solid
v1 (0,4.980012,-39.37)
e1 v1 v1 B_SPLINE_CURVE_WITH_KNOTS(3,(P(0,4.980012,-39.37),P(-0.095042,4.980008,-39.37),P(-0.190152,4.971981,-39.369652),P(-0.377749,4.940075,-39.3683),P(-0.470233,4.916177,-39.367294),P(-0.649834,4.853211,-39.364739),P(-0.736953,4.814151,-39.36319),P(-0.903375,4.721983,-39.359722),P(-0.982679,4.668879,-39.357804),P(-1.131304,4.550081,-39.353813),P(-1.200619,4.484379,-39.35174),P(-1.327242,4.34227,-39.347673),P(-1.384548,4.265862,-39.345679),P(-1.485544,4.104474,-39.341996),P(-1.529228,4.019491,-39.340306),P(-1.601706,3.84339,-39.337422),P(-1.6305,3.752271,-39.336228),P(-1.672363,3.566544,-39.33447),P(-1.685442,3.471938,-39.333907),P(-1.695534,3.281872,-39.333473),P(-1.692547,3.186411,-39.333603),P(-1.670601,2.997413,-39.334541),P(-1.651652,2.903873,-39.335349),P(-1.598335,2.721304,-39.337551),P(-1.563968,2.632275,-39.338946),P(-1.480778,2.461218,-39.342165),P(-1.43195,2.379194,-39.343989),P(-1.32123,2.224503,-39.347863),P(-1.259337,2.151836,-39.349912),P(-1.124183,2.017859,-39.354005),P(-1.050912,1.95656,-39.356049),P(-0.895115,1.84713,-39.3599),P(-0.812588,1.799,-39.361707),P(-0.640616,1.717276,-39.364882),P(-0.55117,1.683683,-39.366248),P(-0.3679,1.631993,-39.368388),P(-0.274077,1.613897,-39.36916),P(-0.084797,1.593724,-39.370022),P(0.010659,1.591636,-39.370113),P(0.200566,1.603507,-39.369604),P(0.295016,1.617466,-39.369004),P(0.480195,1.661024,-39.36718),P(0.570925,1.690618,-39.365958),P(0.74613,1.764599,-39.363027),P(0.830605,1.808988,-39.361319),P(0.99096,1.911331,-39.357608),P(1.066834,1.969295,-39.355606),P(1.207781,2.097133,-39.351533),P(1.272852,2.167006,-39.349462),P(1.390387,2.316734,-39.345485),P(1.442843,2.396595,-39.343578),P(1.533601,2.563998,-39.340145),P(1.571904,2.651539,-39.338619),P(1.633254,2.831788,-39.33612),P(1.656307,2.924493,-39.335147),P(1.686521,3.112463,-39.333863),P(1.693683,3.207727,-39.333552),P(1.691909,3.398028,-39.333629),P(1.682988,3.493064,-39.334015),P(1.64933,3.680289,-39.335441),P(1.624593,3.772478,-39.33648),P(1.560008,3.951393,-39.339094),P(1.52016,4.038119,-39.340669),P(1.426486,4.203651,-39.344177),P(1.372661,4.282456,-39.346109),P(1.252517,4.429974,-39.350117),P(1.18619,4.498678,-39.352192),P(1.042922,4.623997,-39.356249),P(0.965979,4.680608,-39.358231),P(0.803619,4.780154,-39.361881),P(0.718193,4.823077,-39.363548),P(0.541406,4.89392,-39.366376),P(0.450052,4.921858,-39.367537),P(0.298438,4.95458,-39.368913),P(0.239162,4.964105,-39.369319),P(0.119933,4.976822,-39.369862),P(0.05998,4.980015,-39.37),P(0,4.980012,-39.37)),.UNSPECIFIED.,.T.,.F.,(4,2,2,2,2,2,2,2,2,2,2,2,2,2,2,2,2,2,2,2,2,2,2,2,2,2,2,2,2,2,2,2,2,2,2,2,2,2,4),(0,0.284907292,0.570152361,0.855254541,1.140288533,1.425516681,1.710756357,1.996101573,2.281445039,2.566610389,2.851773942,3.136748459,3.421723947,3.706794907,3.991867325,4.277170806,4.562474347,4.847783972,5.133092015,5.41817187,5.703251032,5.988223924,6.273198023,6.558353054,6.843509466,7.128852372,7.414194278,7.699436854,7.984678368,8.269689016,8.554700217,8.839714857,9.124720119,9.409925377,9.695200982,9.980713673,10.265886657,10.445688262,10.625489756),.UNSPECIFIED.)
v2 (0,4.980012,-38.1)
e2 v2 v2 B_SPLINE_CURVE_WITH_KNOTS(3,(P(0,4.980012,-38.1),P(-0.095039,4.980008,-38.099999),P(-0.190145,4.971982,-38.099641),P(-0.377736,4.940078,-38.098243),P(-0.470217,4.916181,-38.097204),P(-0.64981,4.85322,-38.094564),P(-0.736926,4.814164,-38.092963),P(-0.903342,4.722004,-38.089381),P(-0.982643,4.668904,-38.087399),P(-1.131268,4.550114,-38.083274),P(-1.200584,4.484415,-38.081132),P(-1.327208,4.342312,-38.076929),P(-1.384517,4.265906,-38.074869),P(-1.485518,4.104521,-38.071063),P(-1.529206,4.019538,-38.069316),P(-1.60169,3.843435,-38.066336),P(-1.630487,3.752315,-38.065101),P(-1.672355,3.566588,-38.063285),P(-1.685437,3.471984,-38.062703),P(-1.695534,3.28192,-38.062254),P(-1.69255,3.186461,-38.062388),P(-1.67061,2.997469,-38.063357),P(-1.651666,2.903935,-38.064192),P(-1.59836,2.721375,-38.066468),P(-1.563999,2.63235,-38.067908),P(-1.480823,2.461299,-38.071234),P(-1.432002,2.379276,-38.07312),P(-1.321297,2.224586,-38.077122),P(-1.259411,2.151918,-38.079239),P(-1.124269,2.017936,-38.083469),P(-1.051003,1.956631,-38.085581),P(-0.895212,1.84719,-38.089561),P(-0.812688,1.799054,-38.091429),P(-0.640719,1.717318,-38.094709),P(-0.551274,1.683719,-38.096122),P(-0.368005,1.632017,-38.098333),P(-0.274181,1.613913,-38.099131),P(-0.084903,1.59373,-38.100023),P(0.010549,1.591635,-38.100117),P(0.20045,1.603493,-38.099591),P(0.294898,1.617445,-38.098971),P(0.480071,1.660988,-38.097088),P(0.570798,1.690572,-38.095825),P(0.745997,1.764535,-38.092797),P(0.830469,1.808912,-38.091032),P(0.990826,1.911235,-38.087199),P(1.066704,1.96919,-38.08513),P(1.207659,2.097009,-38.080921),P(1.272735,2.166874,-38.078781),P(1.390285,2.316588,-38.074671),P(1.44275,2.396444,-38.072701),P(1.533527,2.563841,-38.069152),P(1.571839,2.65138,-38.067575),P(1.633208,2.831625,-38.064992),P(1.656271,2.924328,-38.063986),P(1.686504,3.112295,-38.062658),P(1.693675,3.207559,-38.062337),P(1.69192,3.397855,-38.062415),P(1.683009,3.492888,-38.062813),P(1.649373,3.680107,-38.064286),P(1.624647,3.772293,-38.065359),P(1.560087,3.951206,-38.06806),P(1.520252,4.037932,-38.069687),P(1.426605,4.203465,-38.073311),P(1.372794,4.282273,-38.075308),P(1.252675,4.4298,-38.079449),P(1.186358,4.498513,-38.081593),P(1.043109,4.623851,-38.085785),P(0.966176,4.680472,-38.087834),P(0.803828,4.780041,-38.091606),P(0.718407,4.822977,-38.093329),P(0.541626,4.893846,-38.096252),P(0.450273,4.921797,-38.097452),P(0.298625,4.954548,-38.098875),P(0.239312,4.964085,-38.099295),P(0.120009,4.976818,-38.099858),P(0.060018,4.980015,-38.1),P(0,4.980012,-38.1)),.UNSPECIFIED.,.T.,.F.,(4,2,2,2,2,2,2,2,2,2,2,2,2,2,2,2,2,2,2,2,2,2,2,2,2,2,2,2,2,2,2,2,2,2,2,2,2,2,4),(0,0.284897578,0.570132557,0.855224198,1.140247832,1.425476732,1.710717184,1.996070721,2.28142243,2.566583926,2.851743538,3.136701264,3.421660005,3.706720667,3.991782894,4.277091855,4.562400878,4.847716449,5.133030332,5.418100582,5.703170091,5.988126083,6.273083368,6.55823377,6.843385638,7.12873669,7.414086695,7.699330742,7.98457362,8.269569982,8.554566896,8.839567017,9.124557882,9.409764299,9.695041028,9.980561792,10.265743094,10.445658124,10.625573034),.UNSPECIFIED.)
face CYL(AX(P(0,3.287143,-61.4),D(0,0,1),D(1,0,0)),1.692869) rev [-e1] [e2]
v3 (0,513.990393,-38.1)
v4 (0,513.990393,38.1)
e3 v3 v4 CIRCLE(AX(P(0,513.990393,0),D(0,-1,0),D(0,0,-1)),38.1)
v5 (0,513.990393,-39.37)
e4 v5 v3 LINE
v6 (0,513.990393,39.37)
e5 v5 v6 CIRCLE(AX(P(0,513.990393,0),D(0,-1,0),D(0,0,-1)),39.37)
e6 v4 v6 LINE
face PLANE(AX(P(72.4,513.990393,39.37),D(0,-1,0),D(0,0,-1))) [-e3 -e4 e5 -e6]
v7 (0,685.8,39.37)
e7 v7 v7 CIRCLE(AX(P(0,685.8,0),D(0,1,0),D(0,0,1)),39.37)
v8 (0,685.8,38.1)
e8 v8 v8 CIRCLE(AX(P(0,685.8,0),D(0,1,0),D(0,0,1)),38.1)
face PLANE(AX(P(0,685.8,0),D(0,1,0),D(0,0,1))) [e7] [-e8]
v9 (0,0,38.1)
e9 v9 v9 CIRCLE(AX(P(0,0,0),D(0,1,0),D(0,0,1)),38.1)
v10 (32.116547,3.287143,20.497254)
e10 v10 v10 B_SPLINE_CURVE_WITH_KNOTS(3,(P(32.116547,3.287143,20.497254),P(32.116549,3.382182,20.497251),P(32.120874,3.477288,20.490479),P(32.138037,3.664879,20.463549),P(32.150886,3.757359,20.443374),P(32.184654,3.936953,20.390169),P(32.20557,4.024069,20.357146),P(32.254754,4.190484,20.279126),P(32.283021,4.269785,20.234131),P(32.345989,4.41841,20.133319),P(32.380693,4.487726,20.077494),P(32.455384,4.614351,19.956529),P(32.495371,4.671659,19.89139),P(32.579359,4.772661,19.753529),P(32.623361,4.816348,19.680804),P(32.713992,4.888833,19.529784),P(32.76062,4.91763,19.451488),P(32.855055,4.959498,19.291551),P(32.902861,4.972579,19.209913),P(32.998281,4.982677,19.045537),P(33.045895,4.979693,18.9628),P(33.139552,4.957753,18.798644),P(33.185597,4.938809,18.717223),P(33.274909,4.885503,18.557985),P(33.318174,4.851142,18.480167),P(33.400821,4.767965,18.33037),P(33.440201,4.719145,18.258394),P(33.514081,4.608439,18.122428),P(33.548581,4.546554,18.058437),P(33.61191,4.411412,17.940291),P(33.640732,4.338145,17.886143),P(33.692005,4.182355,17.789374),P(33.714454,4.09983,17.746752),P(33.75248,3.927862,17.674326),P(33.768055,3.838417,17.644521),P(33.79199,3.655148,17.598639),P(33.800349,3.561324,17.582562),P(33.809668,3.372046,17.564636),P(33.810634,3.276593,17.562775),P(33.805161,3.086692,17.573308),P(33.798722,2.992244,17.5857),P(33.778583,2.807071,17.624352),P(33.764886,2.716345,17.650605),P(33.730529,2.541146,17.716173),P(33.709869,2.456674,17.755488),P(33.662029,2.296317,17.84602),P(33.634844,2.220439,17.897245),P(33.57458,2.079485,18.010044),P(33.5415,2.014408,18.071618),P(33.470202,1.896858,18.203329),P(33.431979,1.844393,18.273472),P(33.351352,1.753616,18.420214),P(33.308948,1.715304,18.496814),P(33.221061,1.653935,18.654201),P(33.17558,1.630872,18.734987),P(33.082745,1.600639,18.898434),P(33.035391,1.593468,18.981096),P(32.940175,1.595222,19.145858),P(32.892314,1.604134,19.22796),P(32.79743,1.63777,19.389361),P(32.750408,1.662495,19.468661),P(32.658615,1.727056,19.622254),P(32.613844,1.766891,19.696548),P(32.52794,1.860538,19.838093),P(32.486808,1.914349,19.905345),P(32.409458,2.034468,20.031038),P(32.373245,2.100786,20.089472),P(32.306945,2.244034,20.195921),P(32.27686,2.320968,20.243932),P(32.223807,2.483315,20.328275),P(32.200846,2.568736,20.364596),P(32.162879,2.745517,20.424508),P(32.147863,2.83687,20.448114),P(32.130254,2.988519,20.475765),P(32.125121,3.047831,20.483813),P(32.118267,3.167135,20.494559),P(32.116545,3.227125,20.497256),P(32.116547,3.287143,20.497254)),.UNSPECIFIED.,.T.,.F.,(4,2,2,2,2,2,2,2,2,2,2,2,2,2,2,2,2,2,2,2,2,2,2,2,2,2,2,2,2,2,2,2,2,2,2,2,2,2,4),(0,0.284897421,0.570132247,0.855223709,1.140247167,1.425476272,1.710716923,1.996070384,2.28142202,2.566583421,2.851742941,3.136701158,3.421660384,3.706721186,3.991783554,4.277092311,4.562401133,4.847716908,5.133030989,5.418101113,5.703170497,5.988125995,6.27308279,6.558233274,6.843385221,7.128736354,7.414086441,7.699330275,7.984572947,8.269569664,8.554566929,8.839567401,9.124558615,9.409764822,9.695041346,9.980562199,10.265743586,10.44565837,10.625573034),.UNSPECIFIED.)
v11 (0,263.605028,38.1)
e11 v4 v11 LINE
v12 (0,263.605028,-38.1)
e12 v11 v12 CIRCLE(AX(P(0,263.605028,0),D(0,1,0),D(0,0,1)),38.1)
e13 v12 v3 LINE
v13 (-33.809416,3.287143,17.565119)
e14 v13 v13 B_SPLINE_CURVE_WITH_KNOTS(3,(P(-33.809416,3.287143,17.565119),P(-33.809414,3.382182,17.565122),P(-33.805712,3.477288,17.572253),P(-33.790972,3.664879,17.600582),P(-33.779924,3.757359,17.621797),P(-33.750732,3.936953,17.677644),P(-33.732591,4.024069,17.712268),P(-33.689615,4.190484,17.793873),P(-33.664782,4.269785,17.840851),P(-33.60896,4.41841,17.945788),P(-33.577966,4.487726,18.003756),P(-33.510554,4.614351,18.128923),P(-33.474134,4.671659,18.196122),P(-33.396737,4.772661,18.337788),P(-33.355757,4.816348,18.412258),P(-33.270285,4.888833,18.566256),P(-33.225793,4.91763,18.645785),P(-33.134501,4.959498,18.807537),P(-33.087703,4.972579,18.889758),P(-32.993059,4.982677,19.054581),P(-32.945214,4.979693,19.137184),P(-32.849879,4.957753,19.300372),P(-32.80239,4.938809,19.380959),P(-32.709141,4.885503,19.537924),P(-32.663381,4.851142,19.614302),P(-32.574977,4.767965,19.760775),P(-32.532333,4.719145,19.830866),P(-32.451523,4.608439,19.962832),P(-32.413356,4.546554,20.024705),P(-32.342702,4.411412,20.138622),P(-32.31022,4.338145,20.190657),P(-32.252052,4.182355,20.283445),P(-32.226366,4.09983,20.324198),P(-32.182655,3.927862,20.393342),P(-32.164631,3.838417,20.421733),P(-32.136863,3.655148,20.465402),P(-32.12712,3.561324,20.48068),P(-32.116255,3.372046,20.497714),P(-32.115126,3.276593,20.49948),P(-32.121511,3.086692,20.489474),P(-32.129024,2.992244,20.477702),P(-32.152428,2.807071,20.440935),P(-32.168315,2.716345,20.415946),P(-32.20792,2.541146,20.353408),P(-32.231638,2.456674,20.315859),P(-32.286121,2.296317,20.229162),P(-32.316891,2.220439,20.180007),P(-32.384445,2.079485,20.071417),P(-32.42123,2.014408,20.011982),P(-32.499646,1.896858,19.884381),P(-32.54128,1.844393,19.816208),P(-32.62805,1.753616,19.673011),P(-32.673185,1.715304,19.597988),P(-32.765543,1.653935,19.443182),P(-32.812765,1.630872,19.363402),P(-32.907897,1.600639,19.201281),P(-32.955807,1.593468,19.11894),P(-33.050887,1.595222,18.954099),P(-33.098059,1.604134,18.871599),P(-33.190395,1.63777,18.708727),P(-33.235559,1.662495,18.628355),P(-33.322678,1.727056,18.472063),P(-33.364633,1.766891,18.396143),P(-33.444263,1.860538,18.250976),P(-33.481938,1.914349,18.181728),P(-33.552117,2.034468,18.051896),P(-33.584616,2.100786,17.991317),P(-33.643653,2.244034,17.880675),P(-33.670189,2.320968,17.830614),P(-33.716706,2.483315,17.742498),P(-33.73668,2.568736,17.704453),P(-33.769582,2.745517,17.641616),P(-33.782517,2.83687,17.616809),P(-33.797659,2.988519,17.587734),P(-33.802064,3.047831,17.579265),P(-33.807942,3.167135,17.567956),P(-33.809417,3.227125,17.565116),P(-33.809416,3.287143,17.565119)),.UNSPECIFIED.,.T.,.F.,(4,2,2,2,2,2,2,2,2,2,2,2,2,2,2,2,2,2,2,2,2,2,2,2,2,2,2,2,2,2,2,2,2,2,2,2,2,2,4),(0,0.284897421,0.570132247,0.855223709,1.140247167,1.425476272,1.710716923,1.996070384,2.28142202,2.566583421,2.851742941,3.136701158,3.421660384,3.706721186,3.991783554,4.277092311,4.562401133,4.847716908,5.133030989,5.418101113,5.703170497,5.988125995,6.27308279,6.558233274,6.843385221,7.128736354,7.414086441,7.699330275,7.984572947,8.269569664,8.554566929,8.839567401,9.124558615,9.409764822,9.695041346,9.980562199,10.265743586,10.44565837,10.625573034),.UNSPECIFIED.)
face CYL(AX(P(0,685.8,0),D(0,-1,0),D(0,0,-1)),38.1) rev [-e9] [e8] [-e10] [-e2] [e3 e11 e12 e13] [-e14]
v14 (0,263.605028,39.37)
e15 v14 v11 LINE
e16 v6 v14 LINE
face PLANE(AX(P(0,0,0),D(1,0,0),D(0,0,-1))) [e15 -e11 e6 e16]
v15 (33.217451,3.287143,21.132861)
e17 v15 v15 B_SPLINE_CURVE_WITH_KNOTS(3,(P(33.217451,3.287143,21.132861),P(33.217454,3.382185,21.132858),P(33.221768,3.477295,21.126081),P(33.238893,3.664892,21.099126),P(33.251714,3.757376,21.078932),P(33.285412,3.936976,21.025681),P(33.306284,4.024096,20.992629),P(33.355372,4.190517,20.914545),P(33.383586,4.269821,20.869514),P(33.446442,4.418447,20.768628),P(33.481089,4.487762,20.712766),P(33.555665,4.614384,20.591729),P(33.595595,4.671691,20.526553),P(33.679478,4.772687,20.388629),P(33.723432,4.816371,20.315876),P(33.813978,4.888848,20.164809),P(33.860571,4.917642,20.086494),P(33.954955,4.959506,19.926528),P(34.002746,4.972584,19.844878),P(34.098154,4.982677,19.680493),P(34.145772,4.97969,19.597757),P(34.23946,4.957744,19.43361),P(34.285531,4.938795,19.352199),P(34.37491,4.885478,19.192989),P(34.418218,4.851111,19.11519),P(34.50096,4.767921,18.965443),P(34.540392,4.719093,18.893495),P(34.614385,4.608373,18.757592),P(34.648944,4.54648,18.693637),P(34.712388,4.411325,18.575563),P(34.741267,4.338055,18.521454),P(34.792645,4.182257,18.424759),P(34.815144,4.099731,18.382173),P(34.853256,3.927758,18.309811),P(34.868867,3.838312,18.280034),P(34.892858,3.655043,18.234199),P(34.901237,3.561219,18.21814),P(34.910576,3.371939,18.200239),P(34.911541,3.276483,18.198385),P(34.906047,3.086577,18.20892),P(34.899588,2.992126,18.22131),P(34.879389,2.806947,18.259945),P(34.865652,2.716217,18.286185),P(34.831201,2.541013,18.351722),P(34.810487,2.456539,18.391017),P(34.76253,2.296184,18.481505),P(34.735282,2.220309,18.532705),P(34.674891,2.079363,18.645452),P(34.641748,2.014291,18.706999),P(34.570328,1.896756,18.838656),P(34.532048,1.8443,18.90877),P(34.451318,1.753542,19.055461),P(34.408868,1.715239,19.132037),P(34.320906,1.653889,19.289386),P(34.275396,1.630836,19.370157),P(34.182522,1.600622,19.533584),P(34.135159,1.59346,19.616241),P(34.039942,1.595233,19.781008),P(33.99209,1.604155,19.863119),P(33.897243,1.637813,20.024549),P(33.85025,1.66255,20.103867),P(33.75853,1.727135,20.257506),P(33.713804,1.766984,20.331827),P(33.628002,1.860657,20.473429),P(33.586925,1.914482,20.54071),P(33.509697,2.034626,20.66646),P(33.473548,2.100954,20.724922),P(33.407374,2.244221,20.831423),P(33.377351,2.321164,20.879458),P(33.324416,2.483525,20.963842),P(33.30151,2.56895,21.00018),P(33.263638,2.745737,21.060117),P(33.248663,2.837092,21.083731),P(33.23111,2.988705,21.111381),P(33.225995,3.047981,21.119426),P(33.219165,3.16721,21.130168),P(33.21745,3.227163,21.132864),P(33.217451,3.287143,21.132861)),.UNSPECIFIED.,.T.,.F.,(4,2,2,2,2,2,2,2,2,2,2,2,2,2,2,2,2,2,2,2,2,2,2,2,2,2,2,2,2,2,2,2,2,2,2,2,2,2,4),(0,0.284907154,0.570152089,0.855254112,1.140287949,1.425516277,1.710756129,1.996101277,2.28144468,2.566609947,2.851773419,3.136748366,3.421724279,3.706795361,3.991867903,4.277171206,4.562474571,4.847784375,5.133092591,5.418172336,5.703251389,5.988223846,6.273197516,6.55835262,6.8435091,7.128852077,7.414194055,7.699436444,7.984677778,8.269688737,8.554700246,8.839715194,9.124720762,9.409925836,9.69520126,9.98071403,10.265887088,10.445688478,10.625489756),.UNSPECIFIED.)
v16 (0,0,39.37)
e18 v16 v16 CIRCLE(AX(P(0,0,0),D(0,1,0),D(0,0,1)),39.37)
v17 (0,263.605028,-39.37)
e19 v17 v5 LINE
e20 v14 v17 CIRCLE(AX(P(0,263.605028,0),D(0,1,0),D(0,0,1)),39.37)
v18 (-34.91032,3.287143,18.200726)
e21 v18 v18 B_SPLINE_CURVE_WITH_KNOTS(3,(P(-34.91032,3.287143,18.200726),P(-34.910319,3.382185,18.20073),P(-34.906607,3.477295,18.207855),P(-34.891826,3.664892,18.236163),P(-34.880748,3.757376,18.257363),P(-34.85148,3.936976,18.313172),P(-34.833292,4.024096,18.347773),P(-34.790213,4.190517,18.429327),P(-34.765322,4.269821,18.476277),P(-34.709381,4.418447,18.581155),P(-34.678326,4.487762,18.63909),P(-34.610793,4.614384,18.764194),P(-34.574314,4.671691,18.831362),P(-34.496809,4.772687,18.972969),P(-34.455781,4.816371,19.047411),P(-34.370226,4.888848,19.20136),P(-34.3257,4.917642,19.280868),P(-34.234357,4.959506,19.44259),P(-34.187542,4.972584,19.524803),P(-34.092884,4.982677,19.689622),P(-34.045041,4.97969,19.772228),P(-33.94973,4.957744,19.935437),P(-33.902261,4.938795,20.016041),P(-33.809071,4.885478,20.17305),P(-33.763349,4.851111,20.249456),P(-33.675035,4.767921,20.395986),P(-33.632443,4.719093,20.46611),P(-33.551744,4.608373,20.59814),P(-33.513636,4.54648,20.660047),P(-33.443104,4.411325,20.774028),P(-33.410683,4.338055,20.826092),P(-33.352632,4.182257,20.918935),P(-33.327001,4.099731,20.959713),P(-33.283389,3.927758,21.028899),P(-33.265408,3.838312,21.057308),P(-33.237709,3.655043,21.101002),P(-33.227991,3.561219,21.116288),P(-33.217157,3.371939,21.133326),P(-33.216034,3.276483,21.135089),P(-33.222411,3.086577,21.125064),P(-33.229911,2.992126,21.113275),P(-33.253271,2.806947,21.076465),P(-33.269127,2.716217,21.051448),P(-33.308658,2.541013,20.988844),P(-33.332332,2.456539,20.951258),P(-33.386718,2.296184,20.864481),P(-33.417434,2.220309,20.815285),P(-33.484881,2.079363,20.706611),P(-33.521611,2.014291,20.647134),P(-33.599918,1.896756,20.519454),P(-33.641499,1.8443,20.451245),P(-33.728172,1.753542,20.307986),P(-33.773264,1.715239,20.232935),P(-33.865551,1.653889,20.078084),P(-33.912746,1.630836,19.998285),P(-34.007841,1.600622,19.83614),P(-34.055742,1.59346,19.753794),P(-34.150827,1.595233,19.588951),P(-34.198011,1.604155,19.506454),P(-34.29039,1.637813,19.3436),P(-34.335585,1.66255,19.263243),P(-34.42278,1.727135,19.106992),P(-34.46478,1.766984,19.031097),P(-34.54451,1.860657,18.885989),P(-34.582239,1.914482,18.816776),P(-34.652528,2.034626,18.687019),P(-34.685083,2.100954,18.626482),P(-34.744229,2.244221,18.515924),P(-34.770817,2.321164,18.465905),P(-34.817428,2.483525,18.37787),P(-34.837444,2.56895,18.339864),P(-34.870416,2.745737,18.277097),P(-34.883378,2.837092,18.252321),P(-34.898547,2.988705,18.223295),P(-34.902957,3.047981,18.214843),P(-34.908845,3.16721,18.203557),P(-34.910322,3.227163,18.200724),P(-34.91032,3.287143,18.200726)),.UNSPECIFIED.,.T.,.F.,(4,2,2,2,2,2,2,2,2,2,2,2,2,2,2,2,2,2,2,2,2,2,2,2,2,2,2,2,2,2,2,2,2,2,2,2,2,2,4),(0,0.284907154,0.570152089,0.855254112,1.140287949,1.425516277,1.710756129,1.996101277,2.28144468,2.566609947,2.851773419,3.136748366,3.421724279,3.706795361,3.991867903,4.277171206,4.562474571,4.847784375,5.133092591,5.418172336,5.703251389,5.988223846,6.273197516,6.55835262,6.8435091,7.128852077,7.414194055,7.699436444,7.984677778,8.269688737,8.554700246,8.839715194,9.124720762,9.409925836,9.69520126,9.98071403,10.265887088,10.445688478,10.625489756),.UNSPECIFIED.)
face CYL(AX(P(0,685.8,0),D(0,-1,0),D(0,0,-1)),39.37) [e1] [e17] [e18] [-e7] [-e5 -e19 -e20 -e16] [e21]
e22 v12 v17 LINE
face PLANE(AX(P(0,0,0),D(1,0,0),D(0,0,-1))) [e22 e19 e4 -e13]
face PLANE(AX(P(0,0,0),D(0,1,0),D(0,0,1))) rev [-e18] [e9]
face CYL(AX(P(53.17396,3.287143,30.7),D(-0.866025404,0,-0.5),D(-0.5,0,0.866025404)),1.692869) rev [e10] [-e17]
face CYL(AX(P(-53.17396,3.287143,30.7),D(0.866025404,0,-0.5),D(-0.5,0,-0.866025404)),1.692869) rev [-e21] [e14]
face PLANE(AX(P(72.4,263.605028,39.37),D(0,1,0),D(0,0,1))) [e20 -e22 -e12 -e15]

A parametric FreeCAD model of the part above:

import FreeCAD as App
import Part
import Sketcher
Q = App.Units.Quantity


def add_polygon(sketch, points):
    """Adds a closed chain of lines whose ends are joined by coincident constraints."""
    first, n = sketch.GeometryCount, len(points)
    for a, b in zip(points, points[1:] + points[:1]):
        sketch.addGeometry(Part.LineSegment(App.Vector(*a, 0), App.Vector(*b, 0)), False)
    for i in range(n):
        sketch.addConstraint(Sketcher.Constraint("Coincident", first + i, 2, first + (i + 1) % n, 1))

doc = App.newDocument("Part")
body = doc.addObject("PartDesign::Body", "Body")

# Sketch on XZ plane
sketch1 = body.newObject("Sketcher::SketchObject", "Sketch")
sketch1.AttachmentSupport = (doc.getObject("XZ_Plane"), [""])
sketch1.MapMode = "FlatFace"
sketch1.addGeometry([
    Part.Circle(App.Vector(0, 0, 0), App.Vector(0, 0, 1), 39),
    Part.Circle(App.Vector(0, 0, 0), App.Vector(0, 0, 1), 38),
], False)
sketch1.addConstraint([
    Sketcher.Constraint("Coincident", 0, 3, -1, 1),
    Sketcher.Constraint("Coincident", 1, 3, -1, 1),
    Sketcher.Constraint("Diameter", 1, Q("3 in")),
    Sketcher.Constraint("Diameter", 0, Q("3.1 in")),
])
pad1 = body.newObject("PartDesign::Pad", "Pad")
pad1.Profile = sketch1
pad1.Length = Q("27 in")
pad1.Reversed = True

# Sketch on XY plane
sketch2 = body.newObject("Sketcher::SketchObject", "Sketch001")
sketch2.AttachmentSupport = (doc.getObject("XY_Plane"), [""])
sketch2.MapMode = "FlatFace"
sketch2.addGeometry(Part.Circle(App.Vector(0, 3.3, 0), App.Vector(0, 0, 1), 1.7), False)
sketch2.addConstraint([
    Sketcher.Constraint("PointOnObject", 0, 3, -2),
    Sketcher.Constraint("Diameter", 0, 3.385738),
    Sketcher.Constraint("DistanceY", -1, 1, 0, 3, 3.287143),
])
pocket1 = body.newObject("PartDesign::Pocket", "Pocket")
pocket1.Profile = sketch2
pocket1.Length = 61.4
doc.recompute()

polarpattern = body.newObject("PartDesign::PolarPattern", "PolarPattern")
polarpattern.Originals = [pocket1]
polarpattern.Axis = (doc.getObject("Y_Axis"), [""])
polarpattern.Angle = 360
polarpattern.Occurrences = 3
body.Tip = polarpattern

# Sketch on YZ plane
sketch3 = body.newObject("Sketcher::SketchObject", "Sketch002")
sketch3.AttachmentSupport = (doc.getObject("YZ_Plane"), [""])
sketch3.MapMode = "FlatFace"
add_polygon(sketch3, [(514, -39), (514, 39), (264, 39), (264, -39)])  # lines 0-3
sketch3.addConstraint([
    Sketcher.Constraint("Vertical", 0),
    Sketcher.Constraint("Horizontal", 1),
    Sketcher.Constraint("Vertical", 2),
    Sketcher.Constraint("Horizontal", 3),
    Sketcher.Constraint("DistanceY", 0, 1, 0, 2, Q("3.1 in")),
    Sketcher.Constraint("DistanceY", -1, 1, 0, 2, Q("1.55 in")),
    Sketcher.Constraint("DistanceX", 1, 2, 1, 1, 250.385364),
    Sketcher.Constraint("DistanceX", -1, 1, 1, 2, 263.605028),
])
pocket2 = body.newObject("PartDesign::Pocket", "Pocket001")
pocket2.Profile = sketch3
pocket2.Length = 72.4
pocket2.Reversed = True

doc.recompute()
